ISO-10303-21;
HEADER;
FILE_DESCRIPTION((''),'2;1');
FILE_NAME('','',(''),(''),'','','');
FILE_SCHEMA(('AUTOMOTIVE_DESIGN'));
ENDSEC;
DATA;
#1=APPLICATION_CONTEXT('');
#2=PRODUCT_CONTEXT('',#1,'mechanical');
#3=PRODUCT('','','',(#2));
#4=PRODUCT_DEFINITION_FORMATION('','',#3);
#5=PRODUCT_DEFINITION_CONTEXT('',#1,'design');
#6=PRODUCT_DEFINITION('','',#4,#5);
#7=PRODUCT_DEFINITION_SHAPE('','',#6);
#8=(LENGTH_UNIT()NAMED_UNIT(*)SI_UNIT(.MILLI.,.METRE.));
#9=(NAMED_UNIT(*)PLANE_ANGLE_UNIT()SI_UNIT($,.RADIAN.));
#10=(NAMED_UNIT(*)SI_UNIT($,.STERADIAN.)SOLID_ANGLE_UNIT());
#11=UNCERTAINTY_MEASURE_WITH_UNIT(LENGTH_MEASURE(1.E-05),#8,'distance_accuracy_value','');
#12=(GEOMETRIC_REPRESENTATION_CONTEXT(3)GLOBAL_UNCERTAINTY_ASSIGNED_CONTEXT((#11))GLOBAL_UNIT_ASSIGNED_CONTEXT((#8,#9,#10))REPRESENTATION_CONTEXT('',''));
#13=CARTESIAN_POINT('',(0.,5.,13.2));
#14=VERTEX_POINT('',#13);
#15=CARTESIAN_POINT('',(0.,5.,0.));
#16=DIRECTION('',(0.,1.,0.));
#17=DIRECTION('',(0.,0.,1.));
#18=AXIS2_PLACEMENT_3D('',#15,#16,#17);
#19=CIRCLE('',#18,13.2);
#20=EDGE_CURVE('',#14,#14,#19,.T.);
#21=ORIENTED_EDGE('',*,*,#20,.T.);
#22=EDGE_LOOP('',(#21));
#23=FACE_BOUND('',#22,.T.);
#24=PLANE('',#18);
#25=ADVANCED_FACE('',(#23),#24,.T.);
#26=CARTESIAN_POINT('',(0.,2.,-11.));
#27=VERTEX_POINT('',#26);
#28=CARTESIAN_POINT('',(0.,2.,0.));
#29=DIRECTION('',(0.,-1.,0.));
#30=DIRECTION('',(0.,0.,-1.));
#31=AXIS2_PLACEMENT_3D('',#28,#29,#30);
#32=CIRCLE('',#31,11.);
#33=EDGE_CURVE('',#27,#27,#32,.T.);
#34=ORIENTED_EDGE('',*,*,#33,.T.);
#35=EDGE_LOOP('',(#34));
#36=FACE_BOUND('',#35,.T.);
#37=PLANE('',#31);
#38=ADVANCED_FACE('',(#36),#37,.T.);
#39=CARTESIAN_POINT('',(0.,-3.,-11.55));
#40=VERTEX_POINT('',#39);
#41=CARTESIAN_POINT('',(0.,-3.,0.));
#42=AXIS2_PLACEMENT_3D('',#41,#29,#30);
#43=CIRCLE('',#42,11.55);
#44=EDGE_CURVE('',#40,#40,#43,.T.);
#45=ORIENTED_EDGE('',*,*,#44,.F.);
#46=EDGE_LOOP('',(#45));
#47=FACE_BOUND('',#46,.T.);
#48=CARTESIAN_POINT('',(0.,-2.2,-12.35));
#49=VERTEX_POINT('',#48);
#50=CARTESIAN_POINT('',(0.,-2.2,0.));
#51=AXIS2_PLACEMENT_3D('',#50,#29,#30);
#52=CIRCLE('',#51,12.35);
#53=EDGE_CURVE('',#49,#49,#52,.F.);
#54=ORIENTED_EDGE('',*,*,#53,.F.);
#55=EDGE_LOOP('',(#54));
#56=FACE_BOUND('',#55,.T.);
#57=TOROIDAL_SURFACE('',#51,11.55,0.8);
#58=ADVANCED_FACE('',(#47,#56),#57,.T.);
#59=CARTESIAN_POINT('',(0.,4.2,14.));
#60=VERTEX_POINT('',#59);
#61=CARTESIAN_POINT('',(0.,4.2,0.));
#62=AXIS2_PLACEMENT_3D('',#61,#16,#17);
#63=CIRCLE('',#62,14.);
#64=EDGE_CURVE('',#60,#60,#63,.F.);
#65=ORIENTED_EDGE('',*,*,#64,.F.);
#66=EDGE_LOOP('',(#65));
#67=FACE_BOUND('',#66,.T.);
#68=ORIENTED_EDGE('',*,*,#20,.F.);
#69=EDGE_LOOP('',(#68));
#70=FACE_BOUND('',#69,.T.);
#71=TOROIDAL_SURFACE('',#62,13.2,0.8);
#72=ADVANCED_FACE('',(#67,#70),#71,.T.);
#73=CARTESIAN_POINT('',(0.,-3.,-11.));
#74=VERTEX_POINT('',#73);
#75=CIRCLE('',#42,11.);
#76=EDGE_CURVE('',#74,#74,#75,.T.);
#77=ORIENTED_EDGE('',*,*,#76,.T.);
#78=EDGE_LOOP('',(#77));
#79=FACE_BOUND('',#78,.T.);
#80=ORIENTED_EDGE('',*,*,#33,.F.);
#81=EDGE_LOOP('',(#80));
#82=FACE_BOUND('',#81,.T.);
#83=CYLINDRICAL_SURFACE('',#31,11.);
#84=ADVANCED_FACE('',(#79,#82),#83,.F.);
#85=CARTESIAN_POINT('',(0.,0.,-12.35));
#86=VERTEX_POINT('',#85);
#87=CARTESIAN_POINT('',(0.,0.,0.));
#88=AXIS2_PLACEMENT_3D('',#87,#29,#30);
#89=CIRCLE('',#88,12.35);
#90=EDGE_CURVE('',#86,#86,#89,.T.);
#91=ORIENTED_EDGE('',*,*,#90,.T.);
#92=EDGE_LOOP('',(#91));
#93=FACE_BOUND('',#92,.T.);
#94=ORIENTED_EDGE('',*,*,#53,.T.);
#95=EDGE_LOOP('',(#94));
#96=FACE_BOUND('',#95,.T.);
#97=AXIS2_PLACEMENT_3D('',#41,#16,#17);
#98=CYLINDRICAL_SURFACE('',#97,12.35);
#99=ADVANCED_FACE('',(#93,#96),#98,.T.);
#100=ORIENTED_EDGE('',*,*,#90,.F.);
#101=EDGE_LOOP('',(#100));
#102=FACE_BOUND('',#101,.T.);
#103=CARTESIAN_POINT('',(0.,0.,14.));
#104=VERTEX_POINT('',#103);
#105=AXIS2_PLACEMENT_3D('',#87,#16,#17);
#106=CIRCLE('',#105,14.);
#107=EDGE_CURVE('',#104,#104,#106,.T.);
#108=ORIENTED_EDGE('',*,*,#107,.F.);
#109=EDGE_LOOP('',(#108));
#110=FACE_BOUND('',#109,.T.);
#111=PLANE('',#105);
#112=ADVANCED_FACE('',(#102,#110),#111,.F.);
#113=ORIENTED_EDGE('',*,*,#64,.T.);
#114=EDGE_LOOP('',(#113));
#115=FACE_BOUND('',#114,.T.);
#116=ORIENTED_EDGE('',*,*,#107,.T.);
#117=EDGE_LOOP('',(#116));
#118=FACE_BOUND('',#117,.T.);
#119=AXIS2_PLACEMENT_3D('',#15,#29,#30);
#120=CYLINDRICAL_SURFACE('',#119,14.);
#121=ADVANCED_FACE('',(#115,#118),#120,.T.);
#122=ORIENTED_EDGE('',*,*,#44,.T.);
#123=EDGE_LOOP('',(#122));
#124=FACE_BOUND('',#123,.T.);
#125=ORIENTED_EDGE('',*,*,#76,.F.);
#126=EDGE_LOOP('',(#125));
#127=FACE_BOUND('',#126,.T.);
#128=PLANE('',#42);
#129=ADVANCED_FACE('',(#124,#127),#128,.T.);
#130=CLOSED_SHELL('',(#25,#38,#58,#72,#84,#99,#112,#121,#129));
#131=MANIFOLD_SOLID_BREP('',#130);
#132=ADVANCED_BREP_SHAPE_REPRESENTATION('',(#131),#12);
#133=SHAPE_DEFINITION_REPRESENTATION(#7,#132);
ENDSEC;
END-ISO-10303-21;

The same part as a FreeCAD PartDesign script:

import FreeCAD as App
import Part
import Sketcher
from FreeCAD import Vector
Q = App.Units.Quantity


def edges_at(feature, points):
    """Names of the edges that pass closest to the given points."""
    edges = feature.Shape.Edges
    near = lambda p: min(range(len(edges)), key=lambda i: edges[i].distToShape(Part.Vertex(*p))[0])
    return sorted({f"Edge{near(p) + 1}" for p in points})

doc = App.newDocument("Part")
body = doc.addObject("PartDesign::Body", "Body")

# Sketch on XZ plane
sketch1 = doc.addObject("Sketcher::SketchObject", "Sketch")
body.addObject(sketch1)
sketch1.AttachmentSupport = (doc.XZ_Plane, [""])
sketch1.MapMode = "FlatFace"
sketch1.addGeometry(Part.Circle(Vector(0, 0, 0), Vector(0, 0, 1), 14), False)
sketch1.addConstraint([
    Sketcher.Constraint("Coincident", 0, 3, -1, 1),
    Sketcher.Constraint("Diameter", 0, Q("28 mm")),
])
pad1 = doc.addObject("PartDesign::Pad", "Pad")
body.addObject(pad1)
pad1.Profile = sketch1
pad1.Length = 5
pad1.Reversed = True

# Sketch on XZ plane
sketch2 = doc.addObject("Sketcher::SketchObject", "Sketch001")
body.addObject(sketch2)
sketch2.AttachmentSupport = (doc.XZ_Plane, [""])
sketch2.MapMode = "FlatFace"
sketch2.addGeometry(Part.Circle(Vector(0, 0, 0), Vector(0, 0, 1), 12.35), False)
sketch2.addConstraint([
    Sketcher.Constraint("Coincident", 0, 3, -1, 1),
    Sketcher.Constraint("Diameter", 0, Q("24.7 mm")),
])
pad2 = doc.addObject("PartDesign::Pad", "Pad001")
body.addObject(pad2)
pad2.Profile = sketch2
pad2.Length = 3

# Sketch on XZ plane
sketch3 = doc.addObject("Sketcher::SketchObject", "Sketch002")
body.addObject(sketch3)
sketch3.AttachmentSupport = (doc.XZ_Plane, [""])
sketch3.MapMode = "FlatFace"
sketch3.AttachmentOffset = App.Placement(Vector(0, 0, 3), App.Rotation())
sketch3.addGeometry(Part.Circle(Vector(0, 0, 0), Vector(0, 0, 1), 11), False)
sketch3.addConstraint([
    Sketcher.Constraint("Coincident", 0, 3, -1, 1),
    Sketcher.Constraint("Diameter", 0, Q("22 mm")),
])
pocket1 = doc.addObject("PartDesign::Pocket", "Pocket")
body.addObject(pocket1)
pocket1.Profile = sketch3
pocket1.Length = 5
doc.recompute()

fillet = doc.addObject("PartDesign::Fillet", "Fillet")
body.addObject(fillet)
fillet.Base = (pocket1, edges_at(pocket1, [(-12.35, -3, 0)]))
fillet.Radius = 0.8
doc.recompute()

fillet2 = doc.addObject("PartDesign::Fillet", "Fillet001")
body.addObject(fillet2)
fillet2.Base = (fillet, edges_at(fillet, [(-14, 5, 0)]))
fillet2.Radius = 0.8

doc.recompute()
